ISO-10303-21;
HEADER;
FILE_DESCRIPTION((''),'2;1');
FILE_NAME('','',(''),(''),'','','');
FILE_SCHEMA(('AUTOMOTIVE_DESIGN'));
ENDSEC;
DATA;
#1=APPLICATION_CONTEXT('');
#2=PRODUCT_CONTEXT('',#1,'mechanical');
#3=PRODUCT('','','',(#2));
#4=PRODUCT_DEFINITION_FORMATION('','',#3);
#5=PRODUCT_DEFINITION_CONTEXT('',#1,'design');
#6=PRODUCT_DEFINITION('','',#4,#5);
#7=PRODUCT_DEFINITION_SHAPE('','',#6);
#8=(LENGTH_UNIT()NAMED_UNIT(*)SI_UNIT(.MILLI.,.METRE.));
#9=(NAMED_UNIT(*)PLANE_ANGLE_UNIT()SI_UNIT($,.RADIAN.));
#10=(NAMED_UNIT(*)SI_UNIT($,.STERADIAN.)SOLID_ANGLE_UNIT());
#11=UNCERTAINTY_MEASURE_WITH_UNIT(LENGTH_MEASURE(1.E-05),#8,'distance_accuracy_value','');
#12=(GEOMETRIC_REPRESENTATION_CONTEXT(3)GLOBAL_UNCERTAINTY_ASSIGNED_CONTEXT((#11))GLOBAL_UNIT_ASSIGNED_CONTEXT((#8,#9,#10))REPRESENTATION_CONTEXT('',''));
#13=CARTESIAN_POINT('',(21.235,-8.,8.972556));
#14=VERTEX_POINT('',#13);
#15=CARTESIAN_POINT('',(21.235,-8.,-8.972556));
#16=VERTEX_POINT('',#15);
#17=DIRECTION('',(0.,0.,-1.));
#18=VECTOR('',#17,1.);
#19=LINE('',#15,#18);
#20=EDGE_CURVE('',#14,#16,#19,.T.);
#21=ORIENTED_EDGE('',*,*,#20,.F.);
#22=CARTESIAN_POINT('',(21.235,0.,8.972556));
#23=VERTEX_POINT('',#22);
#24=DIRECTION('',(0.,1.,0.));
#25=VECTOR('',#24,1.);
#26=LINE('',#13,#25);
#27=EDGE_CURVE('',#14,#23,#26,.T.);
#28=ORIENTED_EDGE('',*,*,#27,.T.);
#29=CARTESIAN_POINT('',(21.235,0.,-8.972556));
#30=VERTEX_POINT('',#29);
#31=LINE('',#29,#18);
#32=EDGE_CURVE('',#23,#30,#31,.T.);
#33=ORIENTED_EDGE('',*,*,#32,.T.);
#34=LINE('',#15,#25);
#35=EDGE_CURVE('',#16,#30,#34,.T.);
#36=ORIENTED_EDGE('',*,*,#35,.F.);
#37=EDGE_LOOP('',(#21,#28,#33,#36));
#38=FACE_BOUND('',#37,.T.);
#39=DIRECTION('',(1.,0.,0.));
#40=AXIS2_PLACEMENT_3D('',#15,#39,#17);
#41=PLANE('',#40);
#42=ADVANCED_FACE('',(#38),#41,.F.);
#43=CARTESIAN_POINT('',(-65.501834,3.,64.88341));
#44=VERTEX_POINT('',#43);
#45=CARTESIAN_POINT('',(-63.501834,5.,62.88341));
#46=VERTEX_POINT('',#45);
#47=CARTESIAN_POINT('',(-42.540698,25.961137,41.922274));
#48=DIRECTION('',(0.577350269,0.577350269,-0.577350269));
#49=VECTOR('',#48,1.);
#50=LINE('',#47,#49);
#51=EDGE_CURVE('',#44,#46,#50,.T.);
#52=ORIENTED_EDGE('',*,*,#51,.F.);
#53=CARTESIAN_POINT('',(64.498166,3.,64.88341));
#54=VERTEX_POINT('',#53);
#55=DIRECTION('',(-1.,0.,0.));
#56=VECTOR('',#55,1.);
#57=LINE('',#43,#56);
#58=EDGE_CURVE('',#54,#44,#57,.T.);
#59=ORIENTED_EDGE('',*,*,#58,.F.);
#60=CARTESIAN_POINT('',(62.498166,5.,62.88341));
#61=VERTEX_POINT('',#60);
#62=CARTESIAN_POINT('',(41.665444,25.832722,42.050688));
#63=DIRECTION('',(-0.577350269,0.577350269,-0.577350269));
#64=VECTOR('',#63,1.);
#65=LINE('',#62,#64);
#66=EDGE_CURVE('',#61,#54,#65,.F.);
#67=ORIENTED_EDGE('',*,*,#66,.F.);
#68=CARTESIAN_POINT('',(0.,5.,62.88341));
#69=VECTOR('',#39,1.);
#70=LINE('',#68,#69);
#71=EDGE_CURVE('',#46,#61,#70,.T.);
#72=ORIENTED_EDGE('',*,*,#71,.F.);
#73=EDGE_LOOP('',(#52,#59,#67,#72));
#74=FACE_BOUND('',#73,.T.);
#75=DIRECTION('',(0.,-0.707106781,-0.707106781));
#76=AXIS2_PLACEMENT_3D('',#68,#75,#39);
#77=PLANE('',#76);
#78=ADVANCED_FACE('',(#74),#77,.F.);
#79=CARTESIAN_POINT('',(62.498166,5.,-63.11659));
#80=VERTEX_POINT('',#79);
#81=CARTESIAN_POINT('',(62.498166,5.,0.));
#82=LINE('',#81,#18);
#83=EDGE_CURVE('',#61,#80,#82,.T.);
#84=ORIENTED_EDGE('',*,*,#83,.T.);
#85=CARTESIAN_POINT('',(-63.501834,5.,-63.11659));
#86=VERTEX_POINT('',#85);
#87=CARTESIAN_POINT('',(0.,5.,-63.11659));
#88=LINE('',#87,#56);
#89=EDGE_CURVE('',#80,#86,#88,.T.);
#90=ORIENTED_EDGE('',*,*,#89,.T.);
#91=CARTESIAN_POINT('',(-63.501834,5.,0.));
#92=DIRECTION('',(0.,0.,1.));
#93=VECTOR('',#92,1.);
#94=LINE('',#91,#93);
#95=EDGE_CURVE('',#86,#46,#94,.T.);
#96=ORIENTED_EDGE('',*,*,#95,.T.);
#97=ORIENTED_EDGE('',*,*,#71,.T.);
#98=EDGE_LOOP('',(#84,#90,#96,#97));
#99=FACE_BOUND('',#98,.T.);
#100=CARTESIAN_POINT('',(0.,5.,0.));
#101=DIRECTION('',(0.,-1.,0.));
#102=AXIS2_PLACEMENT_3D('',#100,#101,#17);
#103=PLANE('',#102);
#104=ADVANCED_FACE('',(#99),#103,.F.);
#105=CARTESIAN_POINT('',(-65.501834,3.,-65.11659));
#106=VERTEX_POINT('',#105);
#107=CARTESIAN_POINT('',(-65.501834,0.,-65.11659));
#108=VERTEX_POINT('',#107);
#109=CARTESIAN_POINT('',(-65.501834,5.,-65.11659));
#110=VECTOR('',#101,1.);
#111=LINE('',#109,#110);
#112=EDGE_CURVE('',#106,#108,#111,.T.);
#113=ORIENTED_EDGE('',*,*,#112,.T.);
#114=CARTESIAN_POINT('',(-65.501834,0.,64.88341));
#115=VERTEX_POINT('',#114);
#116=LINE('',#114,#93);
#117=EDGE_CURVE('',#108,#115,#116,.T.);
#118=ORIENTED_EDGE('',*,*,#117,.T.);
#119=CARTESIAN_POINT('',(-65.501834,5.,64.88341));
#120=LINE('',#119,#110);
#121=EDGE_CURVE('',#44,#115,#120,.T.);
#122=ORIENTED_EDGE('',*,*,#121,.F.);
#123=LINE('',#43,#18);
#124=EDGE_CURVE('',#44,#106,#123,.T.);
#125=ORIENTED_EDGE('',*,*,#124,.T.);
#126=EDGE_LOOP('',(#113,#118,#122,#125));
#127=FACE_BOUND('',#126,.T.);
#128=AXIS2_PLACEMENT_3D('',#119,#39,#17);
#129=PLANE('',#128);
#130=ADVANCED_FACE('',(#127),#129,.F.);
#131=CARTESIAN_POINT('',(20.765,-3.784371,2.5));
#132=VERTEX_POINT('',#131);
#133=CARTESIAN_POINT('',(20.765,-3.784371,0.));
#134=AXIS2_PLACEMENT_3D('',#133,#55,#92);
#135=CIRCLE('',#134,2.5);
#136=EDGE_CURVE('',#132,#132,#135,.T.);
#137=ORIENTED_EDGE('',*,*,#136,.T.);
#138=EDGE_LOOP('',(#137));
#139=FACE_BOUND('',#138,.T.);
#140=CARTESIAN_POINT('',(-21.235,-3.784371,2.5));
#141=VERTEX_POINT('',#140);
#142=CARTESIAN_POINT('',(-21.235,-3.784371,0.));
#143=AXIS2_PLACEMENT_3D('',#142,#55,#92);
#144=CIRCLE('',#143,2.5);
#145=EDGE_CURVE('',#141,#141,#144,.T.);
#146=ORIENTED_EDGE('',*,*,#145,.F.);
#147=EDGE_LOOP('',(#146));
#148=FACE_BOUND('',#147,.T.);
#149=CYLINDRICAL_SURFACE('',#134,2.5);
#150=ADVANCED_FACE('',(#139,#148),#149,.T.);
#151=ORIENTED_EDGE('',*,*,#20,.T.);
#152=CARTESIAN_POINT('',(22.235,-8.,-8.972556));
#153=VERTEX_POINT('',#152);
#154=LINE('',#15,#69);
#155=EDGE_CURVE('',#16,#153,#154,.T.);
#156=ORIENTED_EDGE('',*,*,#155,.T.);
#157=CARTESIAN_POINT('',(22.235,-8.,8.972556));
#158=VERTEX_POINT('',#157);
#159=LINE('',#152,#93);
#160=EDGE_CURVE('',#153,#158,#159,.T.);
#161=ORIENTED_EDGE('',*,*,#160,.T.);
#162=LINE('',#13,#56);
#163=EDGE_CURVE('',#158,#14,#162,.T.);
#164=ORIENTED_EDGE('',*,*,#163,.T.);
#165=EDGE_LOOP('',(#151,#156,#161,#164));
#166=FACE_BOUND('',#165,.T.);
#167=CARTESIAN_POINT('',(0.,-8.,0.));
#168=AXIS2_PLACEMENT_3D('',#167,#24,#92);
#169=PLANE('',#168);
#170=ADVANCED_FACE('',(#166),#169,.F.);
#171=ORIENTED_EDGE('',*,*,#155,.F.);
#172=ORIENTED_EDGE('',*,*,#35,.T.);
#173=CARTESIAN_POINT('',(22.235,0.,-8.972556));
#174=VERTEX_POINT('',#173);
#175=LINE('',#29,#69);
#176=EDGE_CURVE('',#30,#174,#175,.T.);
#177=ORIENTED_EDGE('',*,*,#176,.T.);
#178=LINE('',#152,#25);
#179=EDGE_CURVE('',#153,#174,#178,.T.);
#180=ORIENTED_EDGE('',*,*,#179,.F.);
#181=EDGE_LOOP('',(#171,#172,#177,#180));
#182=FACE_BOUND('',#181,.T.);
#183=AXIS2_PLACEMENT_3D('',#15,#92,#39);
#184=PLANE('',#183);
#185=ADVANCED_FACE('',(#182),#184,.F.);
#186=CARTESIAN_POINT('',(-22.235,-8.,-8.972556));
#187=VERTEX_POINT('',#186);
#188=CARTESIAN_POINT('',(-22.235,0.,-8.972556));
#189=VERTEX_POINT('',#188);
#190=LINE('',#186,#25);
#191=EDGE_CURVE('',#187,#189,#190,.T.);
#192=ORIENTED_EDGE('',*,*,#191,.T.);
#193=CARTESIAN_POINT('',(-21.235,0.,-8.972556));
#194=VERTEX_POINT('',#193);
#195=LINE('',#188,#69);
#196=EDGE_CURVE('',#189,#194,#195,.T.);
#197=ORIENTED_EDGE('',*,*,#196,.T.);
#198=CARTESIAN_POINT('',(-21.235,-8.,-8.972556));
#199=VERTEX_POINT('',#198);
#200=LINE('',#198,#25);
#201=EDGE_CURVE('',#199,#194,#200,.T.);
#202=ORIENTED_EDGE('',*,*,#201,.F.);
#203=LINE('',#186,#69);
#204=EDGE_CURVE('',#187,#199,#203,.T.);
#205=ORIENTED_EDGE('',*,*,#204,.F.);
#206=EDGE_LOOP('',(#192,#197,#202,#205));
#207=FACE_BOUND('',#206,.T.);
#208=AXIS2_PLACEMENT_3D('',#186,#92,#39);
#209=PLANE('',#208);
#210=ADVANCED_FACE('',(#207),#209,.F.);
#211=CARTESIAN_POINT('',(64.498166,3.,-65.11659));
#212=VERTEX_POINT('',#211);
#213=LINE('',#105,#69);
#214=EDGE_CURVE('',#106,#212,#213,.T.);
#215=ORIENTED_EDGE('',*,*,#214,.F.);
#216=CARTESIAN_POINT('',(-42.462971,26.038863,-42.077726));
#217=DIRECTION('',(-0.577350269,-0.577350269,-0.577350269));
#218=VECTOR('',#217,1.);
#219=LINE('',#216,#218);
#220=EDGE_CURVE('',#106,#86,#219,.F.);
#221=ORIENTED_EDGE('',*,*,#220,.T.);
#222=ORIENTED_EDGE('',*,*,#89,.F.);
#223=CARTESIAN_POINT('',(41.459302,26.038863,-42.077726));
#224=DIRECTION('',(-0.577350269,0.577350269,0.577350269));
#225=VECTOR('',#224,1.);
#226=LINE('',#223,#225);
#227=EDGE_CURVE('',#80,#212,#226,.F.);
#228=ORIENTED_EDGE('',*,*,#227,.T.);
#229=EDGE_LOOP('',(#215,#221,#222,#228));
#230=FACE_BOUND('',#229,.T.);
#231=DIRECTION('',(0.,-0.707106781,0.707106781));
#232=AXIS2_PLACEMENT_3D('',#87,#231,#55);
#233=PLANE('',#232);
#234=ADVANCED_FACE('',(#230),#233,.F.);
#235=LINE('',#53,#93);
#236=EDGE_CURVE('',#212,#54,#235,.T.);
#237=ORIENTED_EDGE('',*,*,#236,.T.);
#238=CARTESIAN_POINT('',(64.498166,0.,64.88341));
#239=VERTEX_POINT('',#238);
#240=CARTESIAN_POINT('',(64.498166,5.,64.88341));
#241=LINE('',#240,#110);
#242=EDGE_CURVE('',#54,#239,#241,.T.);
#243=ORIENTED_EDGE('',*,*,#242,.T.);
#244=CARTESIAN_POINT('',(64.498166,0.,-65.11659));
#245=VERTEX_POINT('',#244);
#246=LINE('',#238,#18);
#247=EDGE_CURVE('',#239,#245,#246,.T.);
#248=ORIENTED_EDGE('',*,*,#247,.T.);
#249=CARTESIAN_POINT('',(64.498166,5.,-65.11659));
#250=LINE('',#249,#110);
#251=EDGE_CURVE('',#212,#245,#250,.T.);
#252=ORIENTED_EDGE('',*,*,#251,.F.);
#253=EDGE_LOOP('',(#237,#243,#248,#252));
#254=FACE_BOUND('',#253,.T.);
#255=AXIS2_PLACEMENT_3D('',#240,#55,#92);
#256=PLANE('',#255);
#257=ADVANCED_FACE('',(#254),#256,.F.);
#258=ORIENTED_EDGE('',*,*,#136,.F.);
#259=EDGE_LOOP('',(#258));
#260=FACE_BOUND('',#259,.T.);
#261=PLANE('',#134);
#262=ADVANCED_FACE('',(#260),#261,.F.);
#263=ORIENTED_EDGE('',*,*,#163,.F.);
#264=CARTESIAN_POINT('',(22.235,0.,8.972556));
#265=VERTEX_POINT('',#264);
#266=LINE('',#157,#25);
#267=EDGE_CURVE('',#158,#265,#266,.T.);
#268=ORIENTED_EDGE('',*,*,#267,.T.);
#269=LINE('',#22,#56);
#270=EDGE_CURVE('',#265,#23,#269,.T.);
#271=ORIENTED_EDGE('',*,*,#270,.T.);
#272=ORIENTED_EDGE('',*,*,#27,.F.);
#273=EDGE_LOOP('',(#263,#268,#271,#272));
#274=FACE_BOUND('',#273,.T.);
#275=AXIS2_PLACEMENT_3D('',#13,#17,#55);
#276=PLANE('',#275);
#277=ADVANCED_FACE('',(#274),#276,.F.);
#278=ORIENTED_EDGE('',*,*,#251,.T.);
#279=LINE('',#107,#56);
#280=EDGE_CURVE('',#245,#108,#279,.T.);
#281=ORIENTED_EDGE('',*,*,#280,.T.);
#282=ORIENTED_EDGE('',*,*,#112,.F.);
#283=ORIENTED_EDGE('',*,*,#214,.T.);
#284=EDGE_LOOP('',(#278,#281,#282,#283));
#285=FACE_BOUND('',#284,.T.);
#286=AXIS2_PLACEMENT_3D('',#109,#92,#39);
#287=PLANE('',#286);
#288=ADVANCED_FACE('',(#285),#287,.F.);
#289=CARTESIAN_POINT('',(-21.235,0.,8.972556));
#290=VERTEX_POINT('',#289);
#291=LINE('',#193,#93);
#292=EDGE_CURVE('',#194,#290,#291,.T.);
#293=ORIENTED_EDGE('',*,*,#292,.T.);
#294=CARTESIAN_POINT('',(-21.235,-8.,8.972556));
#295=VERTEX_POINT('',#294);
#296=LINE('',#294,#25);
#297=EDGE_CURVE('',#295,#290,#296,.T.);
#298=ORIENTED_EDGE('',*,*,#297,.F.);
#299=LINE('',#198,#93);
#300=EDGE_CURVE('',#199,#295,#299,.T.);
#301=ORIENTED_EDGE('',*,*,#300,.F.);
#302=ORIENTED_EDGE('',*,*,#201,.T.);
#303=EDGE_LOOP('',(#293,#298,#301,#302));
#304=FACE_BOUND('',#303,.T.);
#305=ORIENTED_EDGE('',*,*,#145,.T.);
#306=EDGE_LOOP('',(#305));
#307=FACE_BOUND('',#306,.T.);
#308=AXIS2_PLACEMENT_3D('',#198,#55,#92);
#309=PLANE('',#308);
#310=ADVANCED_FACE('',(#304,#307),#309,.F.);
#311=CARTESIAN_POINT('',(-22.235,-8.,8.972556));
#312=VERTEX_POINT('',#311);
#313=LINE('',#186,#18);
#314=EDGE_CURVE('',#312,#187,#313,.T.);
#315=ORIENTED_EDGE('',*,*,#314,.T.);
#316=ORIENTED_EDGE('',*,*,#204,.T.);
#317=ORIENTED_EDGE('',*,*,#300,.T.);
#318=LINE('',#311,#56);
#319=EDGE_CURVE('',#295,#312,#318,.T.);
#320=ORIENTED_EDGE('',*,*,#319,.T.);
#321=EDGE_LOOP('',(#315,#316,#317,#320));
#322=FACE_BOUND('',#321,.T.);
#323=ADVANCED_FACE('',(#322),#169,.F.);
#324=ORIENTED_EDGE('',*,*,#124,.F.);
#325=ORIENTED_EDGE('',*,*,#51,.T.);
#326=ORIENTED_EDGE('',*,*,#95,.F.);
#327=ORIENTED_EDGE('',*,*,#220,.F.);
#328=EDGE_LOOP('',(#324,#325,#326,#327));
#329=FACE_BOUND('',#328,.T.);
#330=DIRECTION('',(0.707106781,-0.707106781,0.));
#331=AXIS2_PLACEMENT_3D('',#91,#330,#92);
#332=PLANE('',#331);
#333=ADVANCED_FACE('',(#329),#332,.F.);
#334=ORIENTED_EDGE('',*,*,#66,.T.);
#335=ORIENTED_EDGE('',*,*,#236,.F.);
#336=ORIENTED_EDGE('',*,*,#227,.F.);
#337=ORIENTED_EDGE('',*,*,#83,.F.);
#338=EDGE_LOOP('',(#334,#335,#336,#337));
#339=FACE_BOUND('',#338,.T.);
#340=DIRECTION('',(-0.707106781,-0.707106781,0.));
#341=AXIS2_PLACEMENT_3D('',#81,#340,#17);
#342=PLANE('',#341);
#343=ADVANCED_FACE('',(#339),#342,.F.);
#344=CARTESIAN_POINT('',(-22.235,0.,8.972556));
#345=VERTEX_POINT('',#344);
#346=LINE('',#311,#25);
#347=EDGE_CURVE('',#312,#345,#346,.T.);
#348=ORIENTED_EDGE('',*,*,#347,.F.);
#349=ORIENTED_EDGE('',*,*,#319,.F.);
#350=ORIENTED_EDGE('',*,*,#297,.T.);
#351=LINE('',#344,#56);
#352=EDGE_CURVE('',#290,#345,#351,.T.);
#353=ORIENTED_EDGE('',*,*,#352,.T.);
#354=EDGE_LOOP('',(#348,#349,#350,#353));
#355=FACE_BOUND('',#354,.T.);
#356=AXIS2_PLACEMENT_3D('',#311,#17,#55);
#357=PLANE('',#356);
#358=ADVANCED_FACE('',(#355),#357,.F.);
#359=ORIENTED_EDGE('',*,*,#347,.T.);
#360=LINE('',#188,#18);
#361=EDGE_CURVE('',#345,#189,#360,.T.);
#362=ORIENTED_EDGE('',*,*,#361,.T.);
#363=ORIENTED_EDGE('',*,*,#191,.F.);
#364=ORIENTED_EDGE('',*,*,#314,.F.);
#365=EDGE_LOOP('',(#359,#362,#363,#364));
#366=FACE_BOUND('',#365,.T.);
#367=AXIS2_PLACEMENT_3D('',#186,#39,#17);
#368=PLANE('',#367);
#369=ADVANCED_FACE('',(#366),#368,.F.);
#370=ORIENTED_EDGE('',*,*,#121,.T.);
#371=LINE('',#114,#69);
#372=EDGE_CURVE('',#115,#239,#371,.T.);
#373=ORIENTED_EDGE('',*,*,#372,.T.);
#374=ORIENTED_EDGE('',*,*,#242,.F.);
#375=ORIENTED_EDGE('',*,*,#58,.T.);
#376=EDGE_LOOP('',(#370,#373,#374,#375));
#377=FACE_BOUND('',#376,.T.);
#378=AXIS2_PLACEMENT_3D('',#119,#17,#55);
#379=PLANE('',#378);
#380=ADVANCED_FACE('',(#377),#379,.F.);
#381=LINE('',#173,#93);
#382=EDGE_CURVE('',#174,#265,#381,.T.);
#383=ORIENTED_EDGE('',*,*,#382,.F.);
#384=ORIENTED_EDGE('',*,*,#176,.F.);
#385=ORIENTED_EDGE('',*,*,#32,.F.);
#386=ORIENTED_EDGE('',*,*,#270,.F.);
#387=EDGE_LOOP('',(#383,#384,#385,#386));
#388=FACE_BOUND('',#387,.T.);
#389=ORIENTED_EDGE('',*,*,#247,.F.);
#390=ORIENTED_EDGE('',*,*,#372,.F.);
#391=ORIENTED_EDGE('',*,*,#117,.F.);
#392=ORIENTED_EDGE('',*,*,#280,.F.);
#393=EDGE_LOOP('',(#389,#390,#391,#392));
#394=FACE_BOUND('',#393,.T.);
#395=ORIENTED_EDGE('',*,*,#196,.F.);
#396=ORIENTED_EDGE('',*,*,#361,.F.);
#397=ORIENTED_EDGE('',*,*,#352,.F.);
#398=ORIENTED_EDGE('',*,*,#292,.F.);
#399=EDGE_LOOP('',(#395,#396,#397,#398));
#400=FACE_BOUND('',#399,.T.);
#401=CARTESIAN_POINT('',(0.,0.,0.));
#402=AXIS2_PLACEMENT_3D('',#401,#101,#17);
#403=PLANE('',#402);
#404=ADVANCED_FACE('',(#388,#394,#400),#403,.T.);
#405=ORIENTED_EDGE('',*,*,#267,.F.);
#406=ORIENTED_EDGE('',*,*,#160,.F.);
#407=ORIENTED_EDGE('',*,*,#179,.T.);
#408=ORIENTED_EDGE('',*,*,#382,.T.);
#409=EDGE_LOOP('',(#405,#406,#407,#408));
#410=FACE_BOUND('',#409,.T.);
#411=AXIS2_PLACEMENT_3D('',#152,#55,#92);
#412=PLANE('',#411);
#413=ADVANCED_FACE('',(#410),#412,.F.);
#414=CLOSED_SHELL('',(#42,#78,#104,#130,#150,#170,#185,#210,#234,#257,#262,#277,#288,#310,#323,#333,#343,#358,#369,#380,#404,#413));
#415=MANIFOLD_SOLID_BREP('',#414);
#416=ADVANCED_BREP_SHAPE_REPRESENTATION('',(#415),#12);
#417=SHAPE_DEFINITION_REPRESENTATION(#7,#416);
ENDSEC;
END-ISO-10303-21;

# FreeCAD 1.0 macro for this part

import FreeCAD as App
import Part
import Sketcher
Q = App.Units.Quantity


def edges_at(feature, points):
    """Names of the edges that pass closest to the given points."""
    edges = feature.Shape.Edges
    near = lambda p: min(range(len(edges)), key=lambda i: edges[i].distToShape(Part.Vertex(*p))[0])
    return sorted({f"Edge{near(p) + 1}" for p in points})


def add_polygon(sketch, points):
    """Adds a closed chain of lines whose ends are joined by coincident constraints."""
    first, n = sketch.GeometryCount, len(points)
    for a, b in zip(points, points[1:] + points[:1]):
        sketch.addGeometry(Part.LineSegment(App.Vector(*a, 0), App.Vector(*b, 0)), False)
    for i in range(n):
        sketch.addConstraint(Sketcher.Constraint("Coincident", first + i, 2, first + (i + 1) % n, 1))

doc = App.newDocument("Part")
body = doc.addObject("PartDesign::Body", "Body")

# Sketch on XZ plane
sketch1 = doc.addObject("Sketcher::SketchObject", "Sketch")
body.addObject(sketch1)
sketch1.AttachmentSupport = (doc.XZ_Plane, [""])
sketch1.MapMode = "FlatFace"
add_polygon(sketch1, [(-66, -65), (-66, 65), (64, 65), (64, -65)])  # lines 0-3
sketch1.addConstraint([
    Sketcher.Constraint("Vertical", 0),
    Sketcher.Constraint("Horizontal", 1),
    Sketcher.Constraint("Vertical", 2),
    Sketcher.Constraint("Horizontal", 3),
    Sketcher.Constraint("Equal", 3, 0),
    Sketcher.Constraint("DistanceX", 1, 1, 1, 2, Q("130 mm")),
    Sketcher.Constraint("DistanceY", -1, 1, 0, 2, Q("64.88341 mm")),
    Sketcher.Constraint("DistanceX", 0, 2, -1, 1, Q("65.501834 mm")),
])
pad1 = doc.addObject("PartDesign::Pad", "Pad")
body.addObject(pad1)
pad1.Profile = sketch1
pad1.Length = 5
pad1.Reversed = True

# Sketch on XZ plane
sketch2 = doc.addObject("Sketcher::SketchObject", "Sketch001")
body.addObject(sketch2)
sketch2.AttachmentSupport = (doc.XZ_Plane, [""])
sketch2.MapMode = "FlatFace"
add_polygon(sketch2, [(21.2, 9), (21.2, -9), (22.2, -9), (22.2, 9)])  # lines 0-3
add_polygon(sketch2, [(-22.2, 9), (-22.2, -9), (-21.2, -9), (-21.2, 9)])  # lines 4-7
sketch2.addConstraint([
    Sketcher.Constraint("Vertical", 0),
    Sketcher.Constraint("Horizontal", 1),
    Sketcher.Constraint("Vertical", 2),
    Sketcher.Constraint("Horizontal", 3),
    Sketcher.Constraint("Vertical", 4),
    Sketcher.Constraint("Horizontal", 5),
    Sketcher.Constraint("Vertical", 6),
    Sketcher.Constraint("Horizontal", 7),
    Sketcher.Constraint("Symmetric", 2, 2, 4, 2, -1, 1),
    Sketcher.Constraint("Symmetric", 0, 2, 6, 2, -1, 1),
    Sketcher.Constraint("Horizontal", 1, 2, 4, 2),
    Sketcher.Constraint("DistanceX", 1, 1, 1, 2, Q("1 mm")),
    Sketcher.Constraint("DistanceX", 4, 2, 0, 2, Q("43.47 mm")),
    Sketcher.Constraint("DistanceY", 0, 2, 0, 1, Q("17.945111 mm")),
])
pad2 = doc.addObject("PartDesign::Pad", "Pad001")
body.addObject(pad2)
pad2.Profile = sketch2
pad2.Length = 8

# Sketch on YZ plane
sketch3 = doc.addObject("Sketcher::SketchObject", "Sketch002")
body.addObject(sketch3)
sketch3.AttachmentSupport = (doc.YZ_Plane, [""])
sketch3.MapMode = "FlatFace"
sketch3.AttachmentOffset = App.Placement(App.Vector(0, 0, -22.235), App.Rotation())
sketch3.addGeometry(Part.Circle(App.Vector(-3.8, 0, 0), App.Vector(0, 0, 1), 2.5), False)
sketch3.addConstraint([
    Sketcher.Constraint("PointOnObject", 0, 3, -1),
    Sketcher.Constraint("Diameter", 0, Q("5 mm")),
    Sketcher.Constraint("DistanceX", 0, 3, -1, 1, Q("3.784371 mm")),
])
pad3 = doc.addObject("PartDesign::Pad", "Pad002")
body.addObject(pad3)
pad3.Profile = sketch3
pad3.Length = 43
doc.recompute()

chamfer = doc.addObject("PartDesign::Chamfer", "Chamfer")
body.addObject(chamfer)
chamfer.Base = (pad3, edges_at(pad3, [
    (64.498, 5, -0.117),
    (-0.502, 5, -65.117),
    (-65.502, 5, -0.117),
    (-0.502, 5, 64.883),
]))
chamfer.Size = 2

doc.recompute()
